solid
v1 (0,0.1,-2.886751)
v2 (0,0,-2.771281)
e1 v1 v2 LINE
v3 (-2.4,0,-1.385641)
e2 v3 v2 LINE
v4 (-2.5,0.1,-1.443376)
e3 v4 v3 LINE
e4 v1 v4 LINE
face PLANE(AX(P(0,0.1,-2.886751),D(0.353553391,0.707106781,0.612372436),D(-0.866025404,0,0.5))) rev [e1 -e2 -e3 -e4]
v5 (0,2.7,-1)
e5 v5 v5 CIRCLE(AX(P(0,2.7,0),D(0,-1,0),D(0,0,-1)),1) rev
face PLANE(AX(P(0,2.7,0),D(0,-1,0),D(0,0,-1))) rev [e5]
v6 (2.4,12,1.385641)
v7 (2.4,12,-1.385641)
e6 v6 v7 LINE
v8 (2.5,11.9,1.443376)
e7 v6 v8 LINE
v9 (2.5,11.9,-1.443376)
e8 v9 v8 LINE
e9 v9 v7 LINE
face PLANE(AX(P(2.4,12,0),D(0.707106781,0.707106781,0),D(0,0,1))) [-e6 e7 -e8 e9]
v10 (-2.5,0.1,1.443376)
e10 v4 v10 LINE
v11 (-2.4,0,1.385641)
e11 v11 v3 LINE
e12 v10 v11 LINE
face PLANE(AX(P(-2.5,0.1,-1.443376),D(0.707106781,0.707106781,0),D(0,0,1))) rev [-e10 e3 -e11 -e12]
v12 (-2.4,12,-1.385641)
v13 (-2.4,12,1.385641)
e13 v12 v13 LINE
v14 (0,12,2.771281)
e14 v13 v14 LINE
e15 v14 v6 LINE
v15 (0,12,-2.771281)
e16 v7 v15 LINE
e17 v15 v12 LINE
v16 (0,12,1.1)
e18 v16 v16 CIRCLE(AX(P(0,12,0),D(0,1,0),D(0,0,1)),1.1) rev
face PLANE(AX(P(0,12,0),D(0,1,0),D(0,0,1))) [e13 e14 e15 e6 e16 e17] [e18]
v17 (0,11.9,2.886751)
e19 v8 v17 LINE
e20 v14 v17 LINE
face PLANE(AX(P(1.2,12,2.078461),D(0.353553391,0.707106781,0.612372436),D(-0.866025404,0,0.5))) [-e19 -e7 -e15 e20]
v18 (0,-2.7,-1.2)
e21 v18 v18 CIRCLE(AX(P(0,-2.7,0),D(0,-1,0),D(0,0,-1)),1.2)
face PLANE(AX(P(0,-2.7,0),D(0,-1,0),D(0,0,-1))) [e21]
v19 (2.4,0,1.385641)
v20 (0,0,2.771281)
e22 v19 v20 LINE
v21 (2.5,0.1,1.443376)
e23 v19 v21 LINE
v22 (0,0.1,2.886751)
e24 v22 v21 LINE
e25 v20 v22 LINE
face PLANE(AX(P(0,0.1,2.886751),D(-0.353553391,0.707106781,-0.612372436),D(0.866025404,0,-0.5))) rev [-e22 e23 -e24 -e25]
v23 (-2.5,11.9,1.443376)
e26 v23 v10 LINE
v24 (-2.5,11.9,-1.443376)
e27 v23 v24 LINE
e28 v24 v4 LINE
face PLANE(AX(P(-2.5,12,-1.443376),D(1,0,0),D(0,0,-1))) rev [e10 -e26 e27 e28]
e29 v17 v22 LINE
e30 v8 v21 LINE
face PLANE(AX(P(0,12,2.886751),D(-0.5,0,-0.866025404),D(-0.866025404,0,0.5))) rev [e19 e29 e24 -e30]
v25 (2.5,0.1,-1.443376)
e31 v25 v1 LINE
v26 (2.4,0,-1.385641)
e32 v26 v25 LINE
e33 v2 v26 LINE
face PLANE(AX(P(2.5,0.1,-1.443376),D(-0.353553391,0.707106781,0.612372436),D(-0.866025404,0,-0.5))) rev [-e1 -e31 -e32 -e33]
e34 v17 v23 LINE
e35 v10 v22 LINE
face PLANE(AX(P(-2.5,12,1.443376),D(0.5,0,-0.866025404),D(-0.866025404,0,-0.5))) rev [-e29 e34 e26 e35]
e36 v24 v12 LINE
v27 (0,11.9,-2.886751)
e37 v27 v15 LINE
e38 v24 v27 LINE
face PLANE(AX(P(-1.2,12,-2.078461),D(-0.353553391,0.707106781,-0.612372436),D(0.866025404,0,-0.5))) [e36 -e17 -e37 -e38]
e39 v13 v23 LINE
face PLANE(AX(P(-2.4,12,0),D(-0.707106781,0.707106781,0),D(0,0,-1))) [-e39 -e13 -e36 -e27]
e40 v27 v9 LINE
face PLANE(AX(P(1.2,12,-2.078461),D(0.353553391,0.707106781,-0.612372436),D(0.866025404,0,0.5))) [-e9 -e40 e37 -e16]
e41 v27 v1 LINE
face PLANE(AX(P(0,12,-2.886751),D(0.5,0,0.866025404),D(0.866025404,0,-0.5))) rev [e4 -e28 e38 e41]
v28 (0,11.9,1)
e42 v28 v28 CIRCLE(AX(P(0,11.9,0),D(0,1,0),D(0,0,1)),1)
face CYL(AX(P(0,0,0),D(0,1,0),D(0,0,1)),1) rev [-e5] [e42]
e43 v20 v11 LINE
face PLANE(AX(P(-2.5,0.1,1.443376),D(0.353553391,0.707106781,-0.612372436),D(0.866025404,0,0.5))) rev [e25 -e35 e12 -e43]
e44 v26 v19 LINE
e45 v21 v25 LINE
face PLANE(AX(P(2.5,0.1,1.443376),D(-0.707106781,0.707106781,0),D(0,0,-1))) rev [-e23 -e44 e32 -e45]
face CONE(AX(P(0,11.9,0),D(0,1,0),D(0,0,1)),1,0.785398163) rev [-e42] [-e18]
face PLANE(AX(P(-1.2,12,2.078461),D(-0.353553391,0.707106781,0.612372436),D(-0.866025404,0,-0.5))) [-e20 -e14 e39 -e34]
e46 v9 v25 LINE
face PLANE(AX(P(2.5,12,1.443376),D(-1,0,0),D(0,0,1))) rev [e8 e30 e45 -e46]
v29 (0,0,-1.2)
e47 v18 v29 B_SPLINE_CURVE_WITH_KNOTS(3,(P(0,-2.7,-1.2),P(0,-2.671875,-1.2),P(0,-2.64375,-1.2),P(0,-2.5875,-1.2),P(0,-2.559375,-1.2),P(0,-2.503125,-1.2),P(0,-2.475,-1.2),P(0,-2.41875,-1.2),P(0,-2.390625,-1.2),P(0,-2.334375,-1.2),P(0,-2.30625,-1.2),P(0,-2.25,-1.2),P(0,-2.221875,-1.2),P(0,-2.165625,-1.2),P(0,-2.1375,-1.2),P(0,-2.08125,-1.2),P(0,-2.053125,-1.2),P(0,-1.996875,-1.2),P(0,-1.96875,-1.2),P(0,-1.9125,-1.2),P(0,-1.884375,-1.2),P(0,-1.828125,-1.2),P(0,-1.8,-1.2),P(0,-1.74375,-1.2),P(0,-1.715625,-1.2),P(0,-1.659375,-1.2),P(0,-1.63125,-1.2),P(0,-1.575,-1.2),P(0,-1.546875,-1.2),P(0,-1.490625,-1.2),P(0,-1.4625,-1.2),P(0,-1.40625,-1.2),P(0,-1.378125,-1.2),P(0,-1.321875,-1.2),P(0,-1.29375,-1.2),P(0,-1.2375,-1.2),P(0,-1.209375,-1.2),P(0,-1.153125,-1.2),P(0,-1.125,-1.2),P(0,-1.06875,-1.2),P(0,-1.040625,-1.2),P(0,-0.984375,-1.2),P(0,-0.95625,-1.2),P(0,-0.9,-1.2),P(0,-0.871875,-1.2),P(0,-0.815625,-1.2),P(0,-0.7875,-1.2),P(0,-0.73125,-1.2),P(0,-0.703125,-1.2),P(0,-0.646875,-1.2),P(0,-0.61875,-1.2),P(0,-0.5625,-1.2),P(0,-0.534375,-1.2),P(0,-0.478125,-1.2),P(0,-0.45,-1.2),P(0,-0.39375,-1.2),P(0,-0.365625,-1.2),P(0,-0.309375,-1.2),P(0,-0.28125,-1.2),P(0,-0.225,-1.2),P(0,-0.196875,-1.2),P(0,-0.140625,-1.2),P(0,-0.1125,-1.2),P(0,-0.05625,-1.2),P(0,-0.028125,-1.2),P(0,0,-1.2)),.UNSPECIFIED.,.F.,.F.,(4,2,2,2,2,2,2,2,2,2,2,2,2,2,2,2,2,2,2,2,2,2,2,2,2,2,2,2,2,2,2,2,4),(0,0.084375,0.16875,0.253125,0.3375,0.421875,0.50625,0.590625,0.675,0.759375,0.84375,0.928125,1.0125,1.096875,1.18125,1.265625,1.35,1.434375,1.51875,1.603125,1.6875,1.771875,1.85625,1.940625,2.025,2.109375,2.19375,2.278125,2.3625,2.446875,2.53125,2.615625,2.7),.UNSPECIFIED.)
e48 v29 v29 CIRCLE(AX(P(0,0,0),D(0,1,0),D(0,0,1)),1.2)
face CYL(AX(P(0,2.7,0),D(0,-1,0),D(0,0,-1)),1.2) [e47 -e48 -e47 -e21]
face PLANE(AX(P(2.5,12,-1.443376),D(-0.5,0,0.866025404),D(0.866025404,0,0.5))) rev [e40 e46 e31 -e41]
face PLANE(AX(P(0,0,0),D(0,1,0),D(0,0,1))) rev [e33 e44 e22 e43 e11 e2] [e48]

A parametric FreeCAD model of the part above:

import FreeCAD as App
import Part
import Sketcher

V = App.Vector
Q = App.Units.Quantity


def edges_at(feature, points):
    """Names of the edges that pass closest to the given points."""
    edges = feature.Shape.Edges
    near = lambda p: min(range(len(edges)), key=lambda i: edges[i].distToShape(Part.Vertex(*p))[0])
    return sorted({f"Edge{near(p) + 1}" for p in points})


def add_polygon(sketch, points):
    """Adds a closed chain of lines whose ends are joined by coincident constraints."""
    first, n = sketch.GeometryCount, len(points)
    for a, b in zip(points, points[1:] + points[:1]):
        sketch.addGeometry(Part.LineSegment(App.Vector(*a, 0), App.Vector(*b, 0)), False)
    for i in range(n):
        sketch.addConstraint(Sketcher.Constraint("Coincident", first + i, 2, first + (i + 1) % n, 1))

doc = App.newDocument("Part")
body = doc.addObject("PartDesign::Body", "Body")

# Sketch on XZ plane
sketch1 = body.newObject("Sketcher::SketchObject", "Sketch")
sketch1.AttachmentSupport = (doc.getObject("XZ_Plane"), [""])
sketch1.MapMode = "FlatFace"
add_polygon(sketch1, [(0, -2.9), (-2.5, -1.4), (-2.5, 1.4), (0, 2.9), (2.5, 1.4), (2.5, -1.4)])  # lines 0-5
sketch1.addConstraint(Sketcher.Constraint("Vertical", 1))
sketch1.addConstraint(Sketcher.Constraint("Vertical", 4))
sketch1.addConstraint(Sketcher.Constraint("Symmetric", 0, 2, 3, 2, -1, 1))
sketch1.addConstraint(Sketcher.Constraint("Symmetric", 2, 2, 5, 2, -1, 1))
sketch1.addConstraint(Sketcher.Constraint("PointOnObject", 2, 2, -2))
sketch1.addConstraint(Sketcher.Constraint("Parallel", 2, 5))
sketch1.addConstraint(Sketcher.Constraint("Horizontal", 1, 2, 3, 2))
sketch1.addConstraint(Sketcher.Constraint("Angle", 0, Q("150 deg")))
sketch1.addConstraint(Sketcher.Constraint("DistanceX", 1, 2, 3, 2, 5.0))
sketch1.addConstraint(Sketcher.Constraint("DistanceY", 1, 1, 1, 2, 2.886751))
pad1 = body.newObject("PartDesign::Pad", "Pad")
pad1.Profile = sketch1
pad1.Length = 12
pad1.Reversed = True

# Sketch on XZ plane
sketch2 = body.newObject("Sketcher::SketchObject", "Sketch001")
sketch2.AttachmentSupport = (doc.getObject("XZ_Plane"), [""])
sketch2.MapMode = "FlatFace"
sketch2.AttachmentOffset = App.Placement(V(0, 0, -12), App.Rotation())
sketch2.addGeometry(Part.Circle(V(0, 0, 0), V(0, 0, 1), 1), False)
sketch2.addConstraint(Sketcher.Constraint("Coincident", 0, 3, -1, 1))
sketch2.addConstraint(Sketcher.Constraint("Diameter", 0, 2.0))
pocket1 = body.newObject("PartDesign::Pocket", "Pocket")
pocket1.Profile = sketch2
pocket1.Type = "ThroughAll"
pocket1.Reversed = True
doc.recompute()

chamfer = body.newObject("PartDesign::Chamfer", "Chamfer")
chamfer.Base = (pocket1, edges_at(pocket1, [
    (-2.5, 12, 0),
    (-1.25, 12, 2.165),
    (1.25, 12, 2.165),
    (2.5, 12, 0),
    (0, 12, -1),
    (1.25, 12, -2.165),
    (2.5, 0, 0),
    (1.25, 0, 2.165),
    (-1.25, 0, 2.165),
    (-1.25, 12, -2.165),
    (-2.5, 0, 0),
    (-1.25, 0, -2.165),
    (1.25, 0, -2.165),
]))
chamfer.Size = 0.1

# Sketch on XZ plane
sketch3 = body.newObject("Sketcher::SketchObject", "Sketch002")
sketch3.AttachmentSupport = (doc.getObject("XZ_Plane"), [""])
sketch3.MapMode = "FlatFace"
sketch3.addGeometry(Part.Circle(V(0, 0, 0), V(0, 0, 1), 1.2), False)
sketch3.addConstraint(Sketcher.Constraint("Coincident", 0, 3, -1, 1))
sketch3.addConstraint(Sketcher.Constraint("Diameter", 0, 2.4))
pad2 = body.newObject("PartDesign::Pad", "Pad001")
pad2.Profile = sketch3
pad2.Type = "TwoLengths"
pad2.Length = 2.7
pad2.Length2 = 2.7

doc.recompute()
